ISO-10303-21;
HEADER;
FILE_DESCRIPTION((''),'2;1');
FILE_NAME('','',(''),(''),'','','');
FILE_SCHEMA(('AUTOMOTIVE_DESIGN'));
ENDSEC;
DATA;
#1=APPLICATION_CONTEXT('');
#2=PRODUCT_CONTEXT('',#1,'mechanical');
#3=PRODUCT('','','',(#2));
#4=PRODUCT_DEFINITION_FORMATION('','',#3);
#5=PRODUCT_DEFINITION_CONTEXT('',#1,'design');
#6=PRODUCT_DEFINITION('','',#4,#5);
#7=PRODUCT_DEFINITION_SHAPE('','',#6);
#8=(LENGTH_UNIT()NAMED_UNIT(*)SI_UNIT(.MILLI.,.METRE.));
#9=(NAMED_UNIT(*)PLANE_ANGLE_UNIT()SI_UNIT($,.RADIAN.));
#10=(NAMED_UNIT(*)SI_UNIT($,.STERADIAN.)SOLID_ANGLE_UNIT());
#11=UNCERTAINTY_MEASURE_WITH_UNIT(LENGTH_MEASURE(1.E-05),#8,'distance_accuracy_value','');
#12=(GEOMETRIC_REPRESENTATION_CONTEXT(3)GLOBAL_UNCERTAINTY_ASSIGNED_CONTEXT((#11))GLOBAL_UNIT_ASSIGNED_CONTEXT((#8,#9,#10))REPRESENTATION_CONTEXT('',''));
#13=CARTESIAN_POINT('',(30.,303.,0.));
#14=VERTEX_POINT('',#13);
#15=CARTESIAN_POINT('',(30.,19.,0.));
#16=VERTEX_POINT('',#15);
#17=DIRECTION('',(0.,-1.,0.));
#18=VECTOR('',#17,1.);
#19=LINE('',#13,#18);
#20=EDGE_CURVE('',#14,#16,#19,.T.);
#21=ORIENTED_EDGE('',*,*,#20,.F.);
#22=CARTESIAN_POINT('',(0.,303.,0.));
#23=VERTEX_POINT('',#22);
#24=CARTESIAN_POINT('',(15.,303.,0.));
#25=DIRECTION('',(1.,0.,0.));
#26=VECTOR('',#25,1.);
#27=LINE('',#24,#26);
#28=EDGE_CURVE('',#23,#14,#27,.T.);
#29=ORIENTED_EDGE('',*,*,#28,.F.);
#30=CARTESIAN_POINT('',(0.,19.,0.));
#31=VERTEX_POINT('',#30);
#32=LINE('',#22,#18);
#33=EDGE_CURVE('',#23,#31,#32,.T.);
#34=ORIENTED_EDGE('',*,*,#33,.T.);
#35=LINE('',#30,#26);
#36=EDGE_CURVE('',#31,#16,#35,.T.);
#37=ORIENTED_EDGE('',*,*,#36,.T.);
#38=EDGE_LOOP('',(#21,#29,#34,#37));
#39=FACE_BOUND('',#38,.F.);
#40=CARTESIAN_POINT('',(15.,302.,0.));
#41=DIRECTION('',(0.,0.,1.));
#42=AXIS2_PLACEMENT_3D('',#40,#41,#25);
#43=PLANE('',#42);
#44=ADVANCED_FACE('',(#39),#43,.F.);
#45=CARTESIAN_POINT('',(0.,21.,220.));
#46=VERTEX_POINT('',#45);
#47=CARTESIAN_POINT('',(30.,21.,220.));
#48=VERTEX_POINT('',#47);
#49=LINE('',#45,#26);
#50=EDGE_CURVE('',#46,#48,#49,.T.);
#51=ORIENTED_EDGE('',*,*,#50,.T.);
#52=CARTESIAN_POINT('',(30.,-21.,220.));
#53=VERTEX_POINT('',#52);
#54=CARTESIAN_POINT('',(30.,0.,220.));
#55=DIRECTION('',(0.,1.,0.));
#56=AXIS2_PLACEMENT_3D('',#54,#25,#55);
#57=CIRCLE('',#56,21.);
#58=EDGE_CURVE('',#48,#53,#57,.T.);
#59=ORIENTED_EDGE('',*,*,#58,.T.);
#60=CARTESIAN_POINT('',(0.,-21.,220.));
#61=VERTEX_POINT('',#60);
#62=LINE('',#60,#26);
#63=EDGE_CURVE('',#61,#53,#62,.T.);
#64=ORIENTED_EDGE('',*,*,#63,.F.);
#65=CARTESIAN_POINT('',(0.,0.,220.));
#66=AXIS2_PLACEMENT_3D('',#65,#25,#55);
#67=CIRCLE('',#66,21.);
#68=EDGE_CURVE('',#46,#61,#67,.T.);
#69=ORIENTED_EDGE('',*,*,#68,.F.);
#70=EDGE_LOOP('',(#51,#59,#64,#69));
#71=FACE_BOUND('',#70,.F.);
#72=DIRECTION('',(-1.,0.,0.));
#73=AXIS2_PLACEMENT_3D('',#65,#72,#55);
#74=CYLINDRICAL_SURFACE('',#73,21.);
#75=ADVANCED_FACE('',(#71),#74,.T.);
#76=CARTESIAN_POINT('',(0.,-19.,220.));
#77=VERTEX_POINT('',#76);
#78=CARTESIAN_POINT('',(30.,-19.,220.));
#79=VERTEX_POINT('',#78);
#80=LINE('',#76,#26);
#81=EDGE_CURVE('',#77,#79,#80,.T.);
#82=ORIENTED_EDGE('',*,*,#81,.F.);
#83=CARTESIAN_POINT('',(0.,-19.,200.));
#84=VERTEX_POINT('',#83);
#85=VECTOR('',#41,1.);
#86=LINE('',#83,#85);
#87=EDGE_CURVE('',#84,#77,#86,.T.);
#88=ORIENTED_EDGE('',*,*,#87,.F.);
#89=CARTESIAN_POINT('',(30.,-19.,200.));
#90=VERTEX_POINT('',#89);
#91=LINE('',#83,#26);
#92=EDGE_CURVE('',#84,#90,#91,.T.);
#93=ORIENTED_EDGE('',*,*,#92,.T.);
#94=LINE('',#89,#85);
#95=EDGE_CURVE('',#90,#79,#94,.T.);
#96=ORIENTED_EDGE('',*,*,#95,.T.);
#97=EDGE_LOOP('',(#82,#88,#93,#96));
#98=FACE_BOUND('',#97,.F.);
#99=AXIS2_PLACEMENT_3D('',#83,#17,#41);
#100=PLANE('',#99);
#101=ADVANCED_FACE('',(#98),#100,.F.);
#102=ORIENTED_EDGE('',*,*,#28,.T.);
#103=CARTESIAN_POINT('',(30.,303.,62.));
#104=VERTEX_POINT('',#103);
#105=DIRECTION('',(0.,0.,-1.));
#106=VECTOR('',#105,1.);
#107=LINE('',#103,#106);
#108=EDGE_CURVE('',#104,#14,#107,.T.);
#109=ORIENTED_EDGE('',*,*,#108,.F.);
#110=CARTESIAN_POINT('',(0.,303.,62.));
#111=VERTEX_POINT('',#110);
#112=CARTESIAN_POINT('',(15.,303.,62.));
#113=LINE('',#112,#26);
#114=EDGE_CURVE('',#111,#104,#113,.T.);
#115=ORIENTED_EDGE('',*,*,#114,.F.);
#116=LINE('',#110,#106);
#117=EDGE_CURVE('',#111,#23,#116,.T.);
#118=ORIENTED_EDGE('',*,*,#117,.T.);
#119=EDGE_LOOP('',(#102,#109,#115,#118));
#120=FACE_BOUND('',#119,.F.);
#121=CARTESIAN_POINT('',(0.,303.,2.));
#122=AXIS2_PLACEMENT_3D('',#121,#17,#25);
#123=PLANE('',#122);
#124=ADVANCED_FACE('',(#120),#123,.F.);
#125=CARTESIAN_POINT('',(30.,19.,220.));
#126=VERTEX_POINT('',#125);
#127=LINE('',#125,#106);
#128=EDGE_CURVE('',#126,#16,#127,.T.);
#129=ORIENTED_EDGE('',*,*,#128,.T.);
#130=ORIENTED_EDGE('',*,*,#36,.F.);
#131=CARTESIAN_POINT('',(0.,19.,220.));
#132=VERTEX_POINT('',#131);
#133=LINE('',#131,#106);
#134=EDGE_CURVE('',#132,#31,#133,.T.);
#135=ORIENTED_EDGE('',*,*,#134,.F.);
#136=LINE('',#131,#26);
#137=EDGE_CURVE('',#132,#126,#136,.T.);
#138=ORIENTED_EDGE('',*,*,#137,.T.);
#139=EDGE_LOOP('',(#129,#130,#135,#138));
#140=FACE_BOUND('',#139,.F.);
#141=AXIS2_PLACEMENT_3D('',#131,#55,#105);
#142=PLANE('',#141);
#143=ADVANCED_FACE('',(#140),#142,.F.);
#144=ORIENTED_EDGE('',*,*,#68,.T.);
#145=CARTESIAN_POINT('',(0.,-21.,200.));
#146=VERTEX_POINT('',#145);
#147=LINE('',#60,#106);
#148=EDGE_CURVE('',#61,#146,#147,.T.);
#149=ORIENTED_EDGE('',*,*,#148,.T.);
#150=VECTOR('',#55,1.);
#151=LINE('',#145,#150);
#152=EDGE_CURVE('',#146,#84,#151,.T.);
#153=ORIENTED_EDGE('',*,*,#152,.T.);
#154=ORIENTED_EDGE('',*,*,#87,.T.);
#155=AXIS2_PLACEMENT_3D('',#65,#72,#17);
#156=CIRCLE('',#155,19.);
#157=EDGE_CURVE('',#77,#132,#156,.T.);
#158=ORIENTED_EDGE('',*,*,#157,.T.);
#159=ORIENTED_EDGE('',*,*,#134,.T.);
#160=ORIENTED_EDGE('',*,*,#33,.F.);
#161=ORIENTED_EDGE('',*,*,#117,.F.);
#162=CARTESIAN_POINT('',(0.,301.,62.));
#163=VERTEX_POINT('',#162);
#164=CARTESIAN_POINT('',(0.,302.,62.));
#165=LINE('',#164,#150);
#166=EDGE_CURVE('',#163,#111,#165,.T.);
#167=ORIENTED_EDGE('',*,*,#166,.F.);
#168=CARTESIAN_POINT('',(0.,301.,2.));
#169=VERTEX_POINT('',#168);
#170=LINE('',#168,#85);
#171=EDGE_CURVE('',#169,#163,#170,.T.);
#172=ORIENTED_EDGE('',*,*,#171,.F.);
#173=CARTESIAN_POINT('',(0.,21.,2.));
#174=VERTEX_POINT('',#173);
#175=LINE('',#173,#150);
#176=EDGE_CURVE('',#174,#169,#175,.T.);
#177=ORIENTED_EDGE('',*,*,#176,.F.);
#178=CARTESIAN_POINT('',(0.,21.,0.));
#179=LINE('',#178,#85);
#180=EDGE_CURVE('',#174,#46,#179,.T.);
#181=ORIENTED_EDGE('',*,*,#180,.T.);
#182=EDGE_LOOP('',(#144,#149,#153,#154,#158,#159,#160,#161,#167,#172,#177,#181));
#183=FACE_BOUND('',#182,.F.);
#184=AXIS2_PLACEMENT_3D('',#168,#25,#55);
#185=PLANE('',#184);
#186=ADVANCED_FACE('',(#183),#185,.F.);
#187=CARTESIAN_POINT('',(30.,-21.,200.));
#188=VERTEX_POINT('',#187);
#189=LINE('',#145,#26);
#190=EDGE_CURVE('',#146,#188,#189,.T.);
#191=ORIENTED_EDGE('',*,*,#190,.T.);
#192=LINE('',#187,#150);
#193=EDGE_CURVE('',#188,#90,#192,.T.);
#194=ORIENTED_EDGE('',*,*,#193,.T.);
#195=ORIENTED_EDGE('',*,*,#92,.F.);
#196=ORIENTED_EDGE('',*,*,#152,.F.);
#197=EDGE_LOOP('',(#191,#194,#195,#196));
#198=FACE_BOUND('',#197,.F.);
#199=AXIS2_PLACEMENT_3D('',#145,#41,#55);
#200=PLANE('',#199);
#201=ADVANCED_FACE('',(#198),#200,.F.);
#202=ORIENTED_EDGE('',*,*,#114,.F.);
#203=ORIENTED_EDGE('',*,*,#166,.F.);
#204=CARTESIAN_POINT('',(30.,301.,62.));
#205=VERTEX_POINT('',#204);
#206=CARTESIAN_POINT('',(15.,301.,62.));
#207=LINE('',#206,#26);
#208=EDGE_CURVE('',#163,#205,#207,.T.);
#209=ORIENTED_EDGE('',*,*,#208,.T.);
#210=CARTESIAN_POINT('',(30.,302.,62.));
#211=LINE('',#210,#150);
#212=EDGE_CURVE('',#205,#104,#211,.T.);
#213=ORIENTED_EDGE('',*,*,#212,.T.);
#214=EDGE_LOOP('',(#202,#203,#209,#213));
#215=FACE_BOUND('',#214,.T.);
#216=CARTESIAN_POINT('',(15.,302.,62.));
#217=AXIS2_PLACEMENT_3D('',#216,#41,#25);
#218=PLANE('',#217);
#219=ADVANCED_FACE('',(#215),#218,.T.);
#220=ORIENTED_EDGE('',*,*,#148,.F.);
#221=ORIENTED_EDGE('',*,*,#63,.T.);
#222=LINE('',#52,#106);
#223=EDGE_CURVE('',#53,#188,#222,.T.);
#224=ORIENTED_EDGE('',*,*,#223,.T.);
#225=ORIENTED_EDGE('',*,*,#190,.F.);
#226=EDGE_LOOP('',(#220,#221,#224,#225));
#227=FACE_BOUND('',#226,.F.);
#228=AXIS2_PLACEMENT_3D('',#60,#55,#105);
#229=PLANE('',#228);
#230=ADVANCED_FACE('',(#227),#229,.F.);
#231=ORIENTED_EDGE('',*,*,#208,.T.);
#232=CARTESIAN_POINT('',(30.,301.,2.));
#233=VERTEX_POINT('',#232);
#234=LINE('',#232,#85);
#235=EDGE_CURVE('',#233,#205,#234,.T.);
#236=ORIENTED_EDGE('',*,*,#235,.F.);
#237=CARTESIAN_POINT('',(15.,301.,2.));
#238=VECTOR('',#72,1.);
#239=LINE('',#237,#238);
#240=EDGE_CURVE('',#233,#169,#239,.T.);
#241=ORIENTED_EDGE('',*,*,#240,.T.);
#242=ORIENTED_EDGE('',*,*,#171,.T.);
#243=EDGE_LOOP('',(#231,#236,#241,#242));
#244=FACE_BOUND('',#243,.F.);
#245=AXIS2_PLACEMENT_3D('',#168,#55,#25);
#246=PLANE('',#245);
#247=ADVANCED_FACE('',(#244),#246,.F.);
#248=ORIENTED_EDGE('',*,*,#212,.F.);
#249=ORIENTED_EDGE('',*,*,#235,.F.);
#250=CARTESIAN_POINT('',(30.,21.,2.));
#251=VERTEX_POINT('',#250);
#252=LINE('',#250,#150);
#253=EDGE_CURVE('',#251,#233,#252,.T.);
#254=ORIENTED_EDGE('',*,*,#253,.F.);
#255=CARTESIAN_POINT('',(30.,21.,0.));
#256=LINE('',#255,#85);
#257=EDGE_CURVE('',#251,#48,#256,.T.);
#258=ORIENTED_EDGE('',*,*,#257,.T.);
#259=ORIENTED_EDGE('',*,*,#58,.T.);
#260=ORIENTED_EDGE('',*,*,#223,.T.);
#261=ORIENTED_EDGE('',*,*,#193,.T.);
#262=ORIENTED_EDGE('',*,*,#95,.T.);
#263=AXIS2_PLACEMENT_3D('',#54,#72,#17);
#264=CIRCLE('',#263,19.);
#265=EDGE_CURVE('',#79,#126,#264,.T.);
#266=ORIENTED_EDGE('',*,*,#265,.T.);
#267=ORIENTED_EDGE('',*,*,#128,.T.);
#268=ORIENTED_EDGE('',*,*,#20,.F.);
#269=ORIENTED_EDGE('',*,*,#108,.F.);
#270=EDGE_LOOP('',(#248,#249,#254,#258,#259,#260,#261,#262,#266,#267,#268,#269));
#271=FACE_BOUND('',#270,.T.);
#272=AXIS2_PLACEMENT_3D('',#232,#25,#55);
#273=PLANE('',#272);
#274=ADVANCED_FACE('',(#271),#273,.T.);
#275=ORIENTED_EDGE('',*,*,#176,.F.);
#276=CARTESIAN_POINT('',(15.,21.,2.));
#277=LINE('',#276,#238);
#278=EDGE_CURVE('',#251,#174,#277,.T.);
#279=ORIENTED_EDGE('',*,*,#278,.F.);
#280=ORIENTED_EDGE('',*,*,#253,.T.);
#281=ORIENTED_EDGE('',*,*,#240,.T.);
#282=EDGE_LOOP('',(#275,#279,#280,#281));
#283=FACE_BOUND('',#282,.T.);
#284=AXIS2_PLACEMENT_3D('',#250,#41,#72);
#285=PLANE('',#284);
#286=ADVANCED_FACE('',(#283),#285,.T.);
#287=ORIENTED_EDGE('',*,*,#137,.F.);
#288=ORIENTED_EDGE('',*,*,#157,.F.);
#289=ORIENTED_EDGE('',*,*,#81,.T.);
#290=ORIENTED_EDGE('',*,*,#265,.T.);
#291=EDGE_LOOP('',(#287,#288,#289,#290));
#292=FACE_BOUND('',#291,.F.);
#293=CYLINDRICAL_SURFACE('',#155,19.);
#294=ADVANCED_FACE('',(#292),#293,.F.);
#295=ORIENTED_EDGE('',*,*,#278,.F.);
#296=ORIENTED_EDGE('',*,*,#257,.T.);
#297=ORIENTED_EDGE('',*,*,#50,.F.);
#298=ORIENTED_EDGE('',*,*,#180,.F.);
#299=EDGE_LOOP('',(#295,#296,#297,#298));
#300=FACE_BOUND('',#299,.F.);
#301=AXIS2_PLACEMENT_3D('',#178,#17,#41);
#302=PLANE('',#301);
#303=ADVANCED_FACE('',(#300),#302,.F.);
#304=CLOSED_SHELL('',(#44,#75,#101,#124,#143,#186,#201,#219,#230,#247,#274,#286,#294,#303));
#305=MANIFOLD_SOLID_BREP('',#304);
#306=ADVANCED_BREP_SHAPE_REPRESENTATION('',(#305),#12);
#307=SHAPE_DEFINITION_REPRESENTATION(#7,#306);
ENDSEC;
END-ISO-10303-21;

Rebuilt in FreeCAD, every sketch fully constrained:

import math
import FreeCAD as App
import Part
import Sketcher
from FreeCAD import Vector


def add_polygon(sketch, points):
    """Adds a closed chain of lines whose ends are joined by coincident constraints."""
    first, n = sketch.GeometryCount, len(points)
    for a, b in zip(points, points[1:] + points[:1]):
        sketch.addGeometry(Part.LineSegment(App.Vector(*a, 0), App.Vector(*b, 0)), False)
    for i in range(n):
        sketch.addConstraint(Sketcher.Constraint("Coincident", first + i, 2, first + (i + 1) % n, 1))

doc = App.newDocument("Part")
body = doc.addObject("PartDesign::Body", "Body")

sketch1 = body.newObject("Sketcher::SketchObject", "Sketch")
sketch1.AttachmentSupport = (doc.getObject("YZ_Plane"), [""])
sketch1.MapMode = "FlatFace"
sketch1.addGeometry(Part.ArcOfCircle(Part.Circle(Vector(0, 220, 0), Vector(0, 0, 1), 19), math.radians(0), math.radians(180)), False)
sketch1.addGeometry(Part.LineSegment(Vector(19, 220, 0), Vector(19, 0, 0)), False)
sketch1.addGeometry(Part.LineSegment(Vector(19, 0, 0), Vector(21, 0, 0)), False)
sketch1.addGeometry(Part.LineSegment(Vector(21, 0, 0), Vector(21, 220, 0)), False)
sketch1.addGeometry(Part.ArcOfCircle(Part.Circle(Vector(0, 220, 0), Vector(0, 0, 1), 21), math.radians(0), math.radians(180)), False)
sketch1.addGeometry(Part.LineSegment(Vector(-21, 220, 0), Vector(-21, 200, 0)), False)
sketch1.addGeometry(Part.LineSegment(Vector(-21, 200, 0), Vector(-19, 200, 0)), False)
sketch1.addGeometry(Part.LineSegment(Vector(-19, 200, 0), Vector(-19, 220, 0)), False)
sketch1.addConstraint(Sketcher.Constraint("Tangent", 0, 1, 1, 1))
sketch1.addConstraint(Sketcher.Constraint("Coincident", 1, 2, 2, 1))
sketch1.addConstraint(Sketcher.Constraint("Coincident", 2, 2, 3, 1))
sketch1.addConstraint(Sketcher.Constraint("Tangent", 3, 2, 4, 1))
sketch1.addConstraint(Sketcher.Constraint("Tangent", 4, 2, 5, 1))
sketch1.addConstraint(Sketcher.Constraint("Coincident", 5, 2, 6, 1))
sketch1.addConstraint(Sketcher.Constraint("Coincident", 6, 2, 7, 1))
sketch1.addConstraint(Sketcher.Constraint("Tangent", 7, 2, 0, 2))
sketch1.addConstraint(Sketcher.Constraint("Vertical", 1))
sketch1.addConstraint(Sketcher.Constraint("Horizontal", 2))
sketch1.addConstraint(Sketcher.Constraint("Vertical", 3))
sketch1.addConstraint(Sketcher.Constraint("Vertical", 5))
sketch1.addConstraint(Sketcher.Constraint("Horizontal", 6))
sketch1.addConstraint(Sketcher.Constraint("Vertical", 7))
sketch1.addConstraint(Sketcher.Constraint("Coincident", 4, 3, 0, 3))
sketch1.addConstraint(Sketcher.Constraint("PointOnObject", 0, 3, -2))
sketch1.addConstraint(Sketcher.Constraint("PointOnObject", 1, 2, -1))
sketch1.addConstraint(Sketcher.Constraint("Radius", 0, 19.0))
sketch1.addConstraint(Sketcher.Constraint("Radius", 4, 21.0))
sketch1.addConstraint(Sketcher.Constraint("DistanceY", 1, 2, 1, 1, 220.0))
sketch1.addConstraint(Sketcher.Constraint("DistanceY", 5, 2, 5, 1, 20.0))
pad1 = body.newObject("PartDesign::Pad", "Pad")
pad1.Profile = sketch1
pad1.Length = 30

sketch2 = body.newObject("Sketcher::SketchObject", "Sketch001")
sketch2.AttachmentSupport = (doc.getObject("XZ_Plane"), [""])
sketch2.MapMode = "FlatFace"
sketch2.AttachmentOffset = App.Placement(Vector(0, 0, -21), App.Rotation())
add_polygon(sketch2, [(30, 2), (30, 0), (0, 0), (0, 2)])
sketch2.addConstraint(Sketcher.Constraint("Vertical", 0))
sketch2.addConstraint(Sketcher.Constraint("Horizontal", 1))
sketch2.addConstraint(Sketcher.Constraint("Vertical", 2))
sketch2.addConstraint(Sketcher.Constraint("Horizontal", 3))
sketch2.addConstraint(Sketcher.Constraint("Coincident", 1, 2, -1, 1))
sketch2.addConstraint(Sketcher.Constraint("DistanceX", 1, 2, 1, 1, 30.0))
sketch2.addConstraint(Sketcher.Constraint("DistanceY", 0, 2, 0, 1, 2.0))
pad2 = body.newObject("PartDesign::Pad", "Pad001")
pad2.Profile = sketch2
pad2.Length = 280
pad2.Reversed = True

sketch3 = body.newObject("Sketcher::SketchObject", "Sketch002")
sketch3.AttachmentSupport = (doc.getObject("XY_Plane"), [""])
sketch3.MapMode = "FlatFace"
sketch3.AttachmentOffset = App.Placement(Vector(0, 0, 2), App.Rotation())
add_polygon(sketch3, [(0, 303), (0, 301), (30, 301), (30, 303)])
sketch3.addConstraint(Sketcher.Constraint("Vertical", 0))
sketch3.addConstraint(Sketcher.Constraint("Horizontal", 1))
sketch3.addConstraint(Sketcher.Constraint("Vertical", 2))
sketch3.addConstraint(Sketcher.Constraint("Horizontal", 3))
sketch3.addConstraint(Sketcher.Constraint("PointOnObject", 0, 2, -2))
sketch3.addConstraint(Sketcher.Constraint("DistanceX", 1, 1, 1, 2, 30.0))
sketch3.addConstraint(Sketcher.Constraint("DistanceY", 0, 2, 0, 1, 2.0))
sketch3.addConstraint(Sketcher.Constraint("DistanceY", -1, 1, 0, 2, 301.0))
pad3 = body.newObject("PartDesign::Pad", "Pad002")
pad3.Profile = sketch3
pad3.Type = "TwoLengths"
pad3.Length = 60
pad3.Length2 = 2

doc.recompute()
